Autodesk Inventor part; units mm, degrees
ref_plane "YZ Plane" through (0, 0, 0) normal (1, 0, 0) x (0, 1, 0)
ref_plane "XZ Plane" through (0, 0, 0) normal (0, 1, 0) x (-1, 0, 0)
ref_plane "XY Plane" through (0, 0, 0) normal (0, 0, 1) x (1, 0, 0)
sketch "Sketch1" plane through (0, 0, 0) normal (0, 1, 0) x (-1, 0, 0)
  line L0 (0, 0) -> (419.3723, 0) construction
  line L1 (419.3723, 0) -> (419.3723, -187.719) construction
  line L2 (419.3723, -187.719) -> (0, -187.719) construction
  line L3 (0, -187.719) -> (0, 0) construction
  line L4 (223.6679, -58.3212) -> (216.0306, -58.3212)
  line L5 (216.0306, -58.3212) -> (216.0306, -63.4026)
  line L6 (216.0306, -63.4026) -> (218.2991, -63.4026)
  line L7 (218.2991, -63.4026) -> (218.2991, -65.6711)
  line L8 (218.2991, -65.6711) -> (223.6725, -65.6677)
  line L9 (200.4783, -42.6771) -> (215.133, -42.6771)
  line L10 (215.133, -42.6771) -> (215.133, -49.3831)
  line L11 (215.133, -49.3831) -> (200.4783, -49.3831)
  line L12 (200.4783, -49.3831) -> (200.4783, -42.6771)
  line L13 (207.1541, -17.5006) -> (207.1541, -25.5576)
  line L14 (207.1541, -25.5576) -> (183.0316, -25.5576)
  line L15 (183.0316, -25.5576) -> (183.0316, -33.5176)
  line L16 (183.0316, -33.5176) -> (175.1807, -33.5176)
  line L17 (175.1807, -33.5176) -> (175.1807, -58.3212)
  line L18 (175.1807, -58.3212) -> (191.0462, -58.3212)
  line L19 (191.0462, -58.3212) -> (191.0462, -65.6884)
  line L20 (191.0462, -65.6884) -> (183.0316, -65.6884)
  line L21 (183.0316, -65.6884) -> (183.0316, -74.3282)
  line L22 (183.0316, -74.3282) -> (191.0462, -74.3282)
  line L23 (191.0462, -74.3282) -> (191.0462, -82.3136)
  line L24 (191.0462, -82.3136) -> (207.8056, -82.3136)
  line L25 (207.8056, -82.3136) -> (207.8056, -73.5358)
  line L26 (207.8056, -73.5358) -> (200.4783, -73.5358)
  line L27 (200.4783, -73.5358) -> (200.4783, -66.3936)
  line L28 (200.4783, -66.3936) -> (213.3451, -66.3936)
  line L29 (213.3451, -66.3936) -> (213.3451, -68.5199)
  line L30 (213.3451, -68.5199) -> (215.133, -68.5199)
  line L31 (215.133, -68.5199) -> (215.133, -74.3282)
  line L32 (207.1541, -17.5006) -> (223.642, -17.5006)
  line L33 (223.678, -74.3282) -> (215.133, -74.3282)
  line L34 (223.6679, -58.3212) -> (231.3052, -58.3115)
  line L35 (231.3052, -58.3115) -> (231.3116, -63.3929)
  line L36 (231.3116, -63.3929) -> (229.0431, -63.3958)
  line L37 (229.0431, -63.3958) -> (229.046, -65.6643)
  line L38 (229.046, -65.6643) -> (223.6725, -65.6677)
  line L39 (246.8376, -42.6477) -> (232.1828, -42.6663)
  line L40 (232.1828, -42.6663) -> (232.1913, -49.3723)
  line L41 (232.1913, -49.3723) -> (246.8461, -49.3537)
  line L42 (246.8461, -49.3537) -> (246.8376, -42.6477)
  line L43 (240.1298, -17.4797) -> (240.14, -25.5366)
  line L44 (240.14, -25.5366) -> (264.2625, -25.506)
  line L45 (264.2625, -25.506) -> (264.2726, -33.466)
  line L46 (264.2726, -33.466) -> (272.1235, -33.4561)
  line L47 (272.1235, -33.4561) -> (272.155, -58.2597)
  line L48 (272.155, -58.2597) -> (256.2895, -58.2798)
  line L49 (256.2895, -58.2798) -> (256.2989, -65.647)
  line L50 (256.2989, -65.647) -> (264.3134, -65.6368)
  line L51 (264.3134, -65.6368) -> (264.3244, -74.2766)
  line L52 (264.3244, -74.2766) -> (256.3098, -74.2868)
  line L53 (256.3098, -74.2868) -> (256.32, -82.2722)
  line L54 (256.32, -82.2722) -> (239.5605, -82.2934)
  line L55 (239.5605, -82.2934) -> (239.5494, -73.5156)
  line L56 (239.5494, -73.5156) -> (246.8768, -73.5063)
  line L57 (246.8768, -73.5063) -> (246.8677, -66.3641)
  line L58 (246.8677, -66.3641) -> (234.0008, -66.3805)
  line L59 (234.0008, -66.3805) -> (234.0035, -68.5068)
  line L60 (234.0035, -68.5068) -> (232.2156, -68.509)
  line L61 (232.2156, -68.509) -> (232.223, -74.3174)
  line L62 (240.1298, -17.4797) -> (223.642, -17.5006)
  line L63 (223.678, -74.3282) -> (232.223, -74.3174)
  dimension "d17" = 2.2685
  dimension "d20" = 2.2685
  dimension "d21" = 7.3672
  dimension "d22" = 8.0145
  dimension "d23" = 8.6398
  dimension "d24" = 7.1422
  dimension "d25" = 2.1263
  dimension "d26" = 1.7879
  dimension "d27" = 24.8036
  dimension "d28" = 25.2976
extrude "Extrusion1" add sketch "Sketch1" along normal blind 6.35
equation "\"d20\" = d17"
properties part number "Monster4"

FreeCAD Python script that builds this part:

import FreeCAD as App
import Part
import Sketcher
from FreeCAD import Vector
Q = App.Units.Quantity


def add_polygon(sketch, points):
    """Adds a closed chain of lines whose ends are joined by coincident constraints."""
    first, n = sketch.GeometryCount, len(points)
    for a, b in zip(points, points[1:] + points[:1]):
        sketch.addGeometry(Part.LineSegment(App.Vector(*a, 0), App.Vector(*b, 0)), False)
    for i in range(n):
        sketch.addConstraint(Sketcher.Constraint("Coincident", first + i, 2, first + (i + 1) % n, 1))

doc = App.newDocument("Part")
body = doc.addObject("PartDesign::Body", "Body")

# Sketch on XZ plane
sketch1 = doc.addObject("Sketcher::SketchObject", "Sketch")
body.addObject(sketch1)
sketch1.AttachmentSupport = (doc.XZ_Plane, [""])
sketch1.MapMode = "FlatFace"
add_polygon(sketch1, [(-223.6, -17.5), (-207.2, -17.5), (-207.2, -25.6), (-183, -25.6), (-183, -33.5), (-175.2, -33.5), (-175.2, -58.3), (-191, -58.3), (-191, -65.7), (-183, -65.7), (-183, -74.3), (-191, -74.3), (-191, -82.3), (-207.8, -82.3), (-207.8, -73.5), (-200.5, -73.5), (-200.5, -66.4), (-213.3, -66.4), (-213.3, -68.5), (-215.1, -68.5), (-215.1, -74.3), (-223.7, -74.3), (-232.2, -74.3), (-232.2, -68.5), (-234, -68.5), (-234, -66.4), (-246.9, -66.4), (-246.9, -73.5), (-239.5, -73.5), (-239.6, -82.3), (-256.3, -82.3), (-256.3, -74.3), (-264.3, -74.3), (-264.3, -65.6), (-256.3, -65.6), (-256.3, -58.3), (-272.2, -58.3), (-272.1, -33.5), (-264.3, -33.5), (-264.3, -25.5), (-240.1, -25.5), (-240.1, -17.5)])  # lines 0-41
add_polygon(sketch1, [(-216, -58.3), (-223.7, -58.3), (-231.3, -58.3), (-231.3, -63.4), (-229, -63.4), (-229, -65.7), (-223.7, -65.7), (-218.3, -65.7), (-218.3, -63.4), (-216, -63.4)])  # lines 42-51
add_polygon(sketch1, [(-200.5, -49.4), (-200.5, -42.7), (-215.1, -42.7), (-215.1, -49.4)])  # lines 52-55
add_polygon(sketch1, [(-232.2, -42.7), (-246.8, -42.6), (-246.8, -49.4), (-232.2, -49.4)])  # lines 56-59
sketch1.addConstraint(Sketcher.Constraint("Horizontal", 0))
sketch1.addConstraint(Sketcher.Constraint("Vertical", 1))
sketch1.addConstraint(Sketcher.Constraint("Horizontal", 2))
sketch1.addConstraint(Sketcher.Constraint("Vertical", 3))
sketch1.addConstraint(Sketcher.Constraint("Horizontal", 4))
sketch1.addConstraint(Sketcher.Constraint("Vertical", 5))
sketch1.addConstraint(Sketcher.Constraint("Horizontal", 6))
sketch1.addConstraint(Sketcher.Constraint("Vertical", 7))
sketch1.addConstraint(Sketcher.Constraint("Horizontal", 8))
sketch1.addConstraint(Sketcher.Constraint("Vertical", 9))
sketch1.addConstraint(Sketcher.Constraint("Horizontal", 10))
sketch1.addConstraint(Sketcher.Constraint("Vertical", 11))
sketch1.addConstraint(Sketcher.Constraint("Horizontal", 12))
sketch1.addConstraint(Sketcher.Constraint("Vertical", 13))
sketch1.addConstraint(Sketcher.Constraint("Horizontal", 14))
sketch1.addConstraint(Sketcher.Constraint("Vertical", 15))
sketch1.addConstraint(Sketcher.Constraint("Horizontal", 16))
sketch1.addConstraint(Sketcher.Constraint("Vertical", 17))
sketch1.addConstraint(Sketcher.Constraint("Horizontal", 18))
sketch1.addConstraint(Sketcher.Constraint("Vertical", 19))
sketch1.addConstraint(Sketcher.Constraint("Horizontal", 20))
sketch1.addConstraint(Sketcher.Constraint("Horizontal", 42))
sketch1.addConstraint(Sketcher.Constraint("Vertical", 49))
sketch1.addConstraint(Sketcher.Constraint("Horizontal", 50))
sketch1.addConstraint(Sketcher.Constraint("Vertical", 51))
sketch1.addConstraint(Sketcher.Constraint("Vertical", 52))
sketch1.addConstraint(Sketcher.Constraint("Horizontal", 53))
sketch1.addConstraint(Sketcher.Constraint("Vertical", 54))
sketch1.addConstraint(Sketcher.Constraint("Horizontal", 55))
sketch1.addConstraint(Sketcher.Constraint("Perpendicular", 21, 22))
sketch1.addConstraint(Sketcher.Constraint("Perpendicular", 22, 23))
sketch1.addConstraint(Sketcher.Constraint("Perpendicular", 23, 24))
sketch1.addConstraint(Sketcher.Constraint("Perpendicular", 24, 25))
sketch1.addConstraint(Sketcher.Constraint("Perpendicular", 25, 26))
sketch1.addConstraint(Sketcher.Constraint("Perpendicular", 26, 27))
sketch1.addConstraint(Sketcher.Constraint("Perpendicular", 27, 28))
sketch1.addConstraint(Sketcher.Constraint("Perpendicular", 28, 29))
sketch1.addConstraint(Sketcher.Constraint("Perpendicular", 29, 30))
sketch1.addConstraint(Sketcher.Constraint("Perpendicular", 30, 31))
sketch1.addConstraint(Sketcher.Constraint("Perpendicular", 31, 32))
sketch1.addConstraint(Sketcher.Constraint("Perpendicular", 32, 33))
sketch1.addConstraint(Sketcher.Constraint("Perpendicular", 33, 34))
sketch1.addConstraint(Sketcher.Constraint("Perpendicular", 34, 35))
sketch1.addConstraint(Sketcher.Constraint("Perpendicular", 35, 36))
sketch1.addConstraint(Sketcher.Constraint("Perpendicular", 36, 37))
sketch1.addConstraint(Sketcher.Constraint("Perpendicular", 37, 38))
sketch1.addConstraint(Sketcher.Constraint("Perpendicular", 38, 39))
sketch1.addConstraint(Sketcher.Constraint("Perpendicular", 39, 40))
sketch1.addConstraint(Sketcher.Constraint("Perpendicular", 40, 41))
sketch1.addConstraint(Sketcher.Constraint("Parallel", 41, 43))
sketch1.addConstraint(Sketcher.Constraint("Perpendicular", 43, 44))
sketch1.addConstraint(Sketcher.Constraint("Perpendicular", 44, 45))
sketch1.addConstraint(Sketcher.Constraint("Perpendicular", 45, 46))
sketch1.addConstraint(Sketcher.Constraint("Parallel", 47, 48))
sketch1.addConstraint(Sketcher.Constraint("Perpendicular", 46, 56))
sketch1.addConstraint(Sketcher.Constraint("Perpendicular", 56, 57))
sketch1.addConstraint(Sketcher.Constraint("Perpendicular", 57, 58))
sketch1.addConstraint(Sketcher.Constraint("Perpendicular", 58, 59))
sketch1.addConstraint(Sketcher.Constraint("Horizontal", 10, 2, 19, 2))
sketch1.addConstraint(Sketcher.Constraint("Horizontal", 6, 2, 42, 2))
sketch1.addConstraint(Sketcher.Constraint("Vertical", 3, 2, 8, 2))
sketch1.addConstraint(Sketcher.Constraint("Vertical", 7, 2, 10, 2))
sketch1.addConstraint(Sketcher.Constraint("Vertical", 15, 2, 52, 2))
sketch1.addConstraint(Sketcher.Constraint("Vertical", 19, 2, 53, 2))
sketch1.addConstraint(Sketcher.Constraint("Equal", 50, 49))
sketch1.addConstraint(Sketcher.Constraint("Equal", 31, 33))
sketch1.addConstraint(Sketcher.Constraint("Equal", 45, 46))
sketch1.addConstraint(Sketcher.Constraint("Equal", 47, 48))
sketch1.addConstraint(Sketcher.Constraint("DistanceX", 18, 2, 18, 1, Q("0.0704 in")))
sketch1.addConstraint(Sketcher.Constraint("DistanceX", 50, 1, 50, 2, Q("0.0893 in")))
sketch1.addConstraint(Sketcher.Constraint("DistanceY", 15, 1, 15, 2, Q("0.2812 in")))
sketch1.addConstraint(Sketcher.Constraint("Distance", 23, Q("0.0704 in")))
sketch1.addConstraint(Sketcher.Constraint("Distance", 26, Q("0.2812 in")))
sketch1.addConstraint(Sketcher.Constraint("Distance", 45, Q("0.0893 in")))
sketch1.addConstraint(Sketcher.Constraint("DistanceX", 8, 1, 8, 2, 8.0146))
sketch1.addConstraint(Sketcher.Constraint("DistanceY", 5, 2, 5, 1, 24.8036))
sketch1.addConstraint(Sketcher.Constraint("DistanceY", 7, 2, 7, 1, 7.3672))
sketch1.addConstraint(Sketcher.Constraint("DistanceY", 9, 2, 9, 1, 8.6398))
sketch1.addConstraint(Sketcher.Constraint("DistanceY", 17, 2, 17, 1, 2.1263))
sketch1.addConstraint(Sketcher.Constraint("Distance", 24, 2.1263))
sketch1.addConstraint(Sketcher.Constraint("Distance", 31, 8.0146))
sketch1.addConstraint(Sketcher.Constraint("Distance", 32, 8.6398))
sketch1.addConstraint(Sketcher.Constraint("Distance", 34, 7.3672))
sketch1.addConstraint(Sketcher.Constraint("Distance", 36, 24.8036))
sketch1.addConstraint(Sketcher.Constraint("Angle", 23, Q("179.9295 deg")))
sketch1.addConstraint(Sketcher.Constraint("DistanceX", 2, 1, 2, 2, Q("0.9497 in")))
sketch1.addConstraint(Sketcher.Constraint("DistanceX", 4, 1, 4, 2, Q("0.3091 in")))
sketch1.addConstraint(Sketcher.Constraint("DistanceY", 1, 2, 1, 1, Q("0.3172 in")))
sketch1.addConstraint(Sketcher.Constraint("DistanceY", 0, 2, -1, 1, Q("0.689 in")))
sketch1.addConstraint(Sketcher.Constraint("DistanceX", 47, 2, -1, 1, Q("8.806 in")))
sketch1.addConstraint(Sketcher.Constraint("DistanceY", 13, 2, 6, 2, Q("0.599 in")))
sketch1.addConstraint(Sketcher.Constraint("DistanceY", 36, 2, 38, 2, Q("0.313 in")))
sketch1.addConstraint(Sketcher.Constraint("DistanceX", 32, 2, 38, 2, Q("0.002 in")))
sketch1.addConstraint(Sketcher.Constraint("DistanceY", 38, 2, 40, 2, Q("0.316 in")))
sketch1.addConstraint(Sketcher.Constraint("DistanceY", 23, 2, 42, 2, Q("0.401 in")))
sketch1.addConstraint(Sketcher.Constraint("DistanceY", 22, 2, 46, 2, Q("0.112 in")))
sketch1.addConstraint(Sketcher.Constraint("DistanceY", 52, 2, 1, 2, Q("0.674 in")))
sketch1.addConstraint(Sketcher.Constraint("DistanceY", 44, 2, 58, 2, Q("0.552 in")))
sketch1.addConstraint(Sketcher.Constraint("Distance", 37, Q("0.3091 in")))
sketch1.addConstraint(Sketcher.Constraint("Distance", 39, Q("0.9497 in")))
sketch1.addConstraint(Sketcher.Constraint("DistanceX", 0, 1, 0, 2, 16.488))
sketch1.addConstraint(Sketcher.Constraint("DistanceX", 12, 2, 12, 1, 16.7594))
sketch1.addConstraint(Sketcher.Constraint("DistanceX", 14, 1, 14, 2, 7.3273))
sketch1.addConstraint(Sketcher.Constraint("DistanceX", 16, 2, 16, 1, 12.8668))
sketch1.addConstraint(Sketcher.Constraint("DistanceX", 20, 2, 20, 1, 8.545))
sketch1.addConstraint(Sketcher.Constraint("DistanceX", 42, 2, 42, 1, 7.6373))
sketch1.addConstraint(Sketcher.Constraint("DistanceY", 3, 2, 3, 1, 7.96))
sketch1.addConstraint(Sketcher.Constraint("DistanceY", 11, 2, 11, 1, 7.9854))
sketch1.addConstraint(Sketcher.Constraint("DistanceY", 51, 1, 51, 2, 5.0814))
sketch1.addConstraint(Sketcher.Constraint("DistanceY", 52, 1, 52, 2, 6.706))
sketch1.addConstraint(Sketcher.Constraint("DistanceX", 6, 2, -1, 1, Q("7.5215 in")))
sketch1.addConstraint(Sketcher.Constraint("DistanceX", 25, 2, -1, 1, Q("9.7192 in")))
sketch1.addConstraint(Sketcher.Constraint("DistanceY", 28, 2, -1, 1, Q("3.2399 in")))
sketch1.addConstraint(Sketcher.Constraint("DistanceX", 33, 2, -1, 1, Q("10.0905 in")))
sketch1.addConstraint(Sketcher.Constraint("DistanceX", 43, 2, -1, 1, Q("9.1065 in")))
sketch1.addConstraint(Sketcher.Constraint("DistanceX", 58, 2, -1, 1, Q("9.1414 in")))
sketch1.addConstraint(Sketcher.Constraint("DistanceX", 24, 2, 20, 2, Q("0.4064 in")))
sketch1.addConstraint(Sketcher.Constraint("DistanceX", 31, 2, 27, 2, Q("0.9754 in")))
sketch1.addConstraint(Sketcher.Constraint("DistanceX", 56, 2, 43, 2, Q("0.6115 in")))
sketch1.addConstraint(Sketcher.Constraint("Distance", 57, 6.706))
pad1 = doc.addObject("PartDesign::Pad", "Pad")
body.addObject(pad1)
pad1.Profile = sketch1
pad1.Length = Q("0.25 in")
pad1.Reversed = True

doc.recompute()
